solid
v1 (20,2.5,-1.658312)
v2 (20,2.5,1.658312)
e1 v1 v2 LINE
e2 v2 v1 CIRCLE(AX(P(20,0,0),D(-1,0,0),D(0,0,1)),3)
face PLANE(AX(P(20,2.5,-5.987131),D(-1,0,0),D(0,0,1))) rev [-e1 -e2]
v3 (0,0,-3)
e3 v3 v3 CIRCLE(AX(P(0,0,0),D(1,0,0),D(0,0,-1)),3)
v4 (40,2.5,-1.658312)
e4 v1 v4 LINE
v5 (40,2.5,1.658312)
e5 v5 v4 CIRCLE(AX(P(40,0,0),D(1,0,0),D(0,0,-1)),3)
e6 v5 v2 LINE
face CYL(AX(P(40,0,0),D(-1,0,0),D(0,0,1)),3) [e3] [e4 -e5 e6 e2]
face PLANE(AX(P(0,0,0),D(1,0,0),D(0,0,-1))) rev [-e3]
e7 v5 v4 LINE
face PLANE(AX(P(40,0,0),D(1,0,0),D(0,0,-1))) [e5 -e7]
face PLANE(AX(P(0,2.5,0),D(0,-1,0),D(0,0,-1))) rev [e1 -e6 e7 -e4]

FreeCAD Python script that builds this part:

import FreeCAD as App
import Part
import Sketcher
from FreeCAD import Vector
Q = App.Units.Quantity

doc = App.newDocument("Part")
params = doc.addObject("Spreadsheet::Sheet", "Params")
for row, (alias, value) in enumerate([
    ("sketch1_diameter", "6 mm"),
    ("pad1_length", "40 mm"),
    ("sketch2_width", "20 mm"),
    ("pocket1_length", "0.5 mm"),
], start=1):
    params.set(f"A{row}", alias)
    params.set(f"B{row}", "=" + value)
    params.setAlias(f"B{row}", alias)

body = doc.addObject("PartDesign::Body", "Body")

# Sketch on YZ plane
sketch1 = body.newObject("Sketcher::SketchObject", "Sketch")
sketch1.AttachmentSupport = (doc.getObject("YZ_Plane"), [""])
sketch1.MapMode = "FlatFace"
sketch1.addGeometry(Part.Circle(Vector(0, 0, 0), Vector(0, 0, 1), 3), False)
sketch1.addConstraint(Sketcher.Constraint("Coincident", 0, 3, -1, 1))
sketch1.addConstraint(Sketcher.Constraint("Diameter", 0, Q("6 mm")))
sketch1.setExpression("Constraints[1]", "Params.sketch1_diameter")
pad1 = body.newObject("PartDesign::Pad", "Pad")
pad1.Profile = sketch1
pad1.setExpression("Length", "Params.pad1_length")

# Sketch on XZ plane
sketch2 = body.newObject("Sketcher::SketchObject", "Sketch001")
sketch2.AttachmentSupport = (doc.getObject("XZ_Plane"), [""])
sketch2.MapMode = "FlatFace"
sketch2.AttachmentOffset = App.Placement(Vector(0, 0, -3), App.Rotation())
sketch2.addGeometry(Part.LineSegment(Vector(20, -6, 0), Vector(20, 5, 0)), False)
sketch2.addGeometry(Part.LineSegment(Vector(20, 5, 0), Vector(40, 5, 0)), False)
sketch2.addGeometry(Part.LineSegment(Vector(40, 5, 0), Vector(40, -6, 0)), False)
sketch2.addGeometry(Part.LineSegment(Vector(40, -6, 0), Vector(20, -6, 0)), False)
sketch2.addConstraint(Sketcher.Constraint("Coincident", 0, 2, 1, 1))
sketch2.addConstraint(Sketcher.Constraint("Coincident", 1, 2, 2, 1))
sketch2.addConstraint(Sketcher.Constraint("Coincident", 2, 2, 3, 1))
sketch2.addConstraint(Sketcher.Constraint("Coincident", 3, 2, 0, 1))
sketch2.addConstraint(Sketcher.Constraint("Vertical", 0))
sketch2.addConstraint(Sketcher.Constraint("Horizontal", 1))
sketch2.addConstraint(Sketcher.Constraint("Vertical", 2))
sketch2.addConstraint(Sketcher.Constraint("Horizontal", 3))
sketch2.addConstraint(Sketcher.Constraint("DistanceX", 1, 1, 1, 2, Q("20 mm")))
sketch2.addConstraint(Sketcher.Constraint("DistanceX", -1, 1, 0, 2, Q("20 mm")))
sketch2.addConstraint(Sketcher.Constraint("DistanceY", 0, 1, 0, 2, Q("11.151642 mm")))
sketch2.addConstraint(Sketcher.Constraint("DistanceY", -1, 1, 0, 2, Q("5.16451 mm")))
sketch2.setExpression("Constraints[8]", "Params.sketch2_width")
pocket1 = body.newObject("PartDesign::Pocket", "Pocket")
pocket1.Profile = sketch2
pocket1.setExpression("Length", "Params.pocket1_length")
pocket1.Reversed = True

doc.recompute()
